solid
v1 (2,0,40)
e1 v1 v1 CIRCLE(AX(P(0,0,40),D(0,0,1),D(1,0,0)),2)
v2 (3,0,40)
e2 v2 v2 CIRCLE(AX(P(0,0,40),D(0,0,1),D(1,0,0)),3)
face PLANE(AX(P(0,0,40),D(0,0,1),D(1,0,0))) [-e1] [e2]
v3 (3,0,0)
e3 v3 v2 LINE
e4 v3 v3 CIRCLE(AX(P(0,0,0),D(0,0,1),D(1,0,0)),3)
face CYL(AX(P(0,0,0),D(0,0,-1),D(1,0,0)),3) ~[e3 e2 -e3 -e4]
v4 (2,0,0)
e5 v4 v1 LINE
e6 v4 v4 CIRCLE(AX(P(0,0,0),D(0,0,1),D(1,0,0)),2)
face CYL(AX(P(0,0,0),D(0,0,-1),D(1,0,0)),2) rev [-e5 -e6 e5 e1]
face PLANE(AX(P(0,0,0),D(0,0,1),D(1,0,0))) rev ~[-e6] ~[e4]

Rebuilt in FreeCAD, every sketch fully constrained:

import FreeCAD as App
import Part
import Sketcher

V = App.Vector

doc = App.newDocument("Part")
body = doc.addObject("PartDesign::Body", "Body")

# Sketch on XY plane
sketch1 = body.newObject("Sketcher::SketchObject", "Sketch")
sketch1.AttachmentSupport = (doc.getObject("XY_Plane"), [""])
sketch1.MapMode = "FlatFace"
sketch1.addGeometry(Part.Circle(V(0, 0, 0), V(0, 0, 1), 3), False)
sketch1.addGeometry(Part.Circle(V(0, 0, 0), V(0, 0, 1), 2), False)
sketch1.addConstraint(Sketcher.Constraint("Coincident", 0, 3, -1, 1))
sketch1.addConstraint(Sketcher.Constraint("Coincident", 1, 3, -1, 1))
sketch1.addConstraint(Sketcher.Constraint("Diameter", 0, 6.0))
sketch1.addConstraint(Sketcher.Constraint("Diameter", 1, 4.0))
pad1 = body.newObject("PartDesign::Pad", "Pad")
pad1.Profile = sketch1
pad1.Length = 40

doc.recompute()
